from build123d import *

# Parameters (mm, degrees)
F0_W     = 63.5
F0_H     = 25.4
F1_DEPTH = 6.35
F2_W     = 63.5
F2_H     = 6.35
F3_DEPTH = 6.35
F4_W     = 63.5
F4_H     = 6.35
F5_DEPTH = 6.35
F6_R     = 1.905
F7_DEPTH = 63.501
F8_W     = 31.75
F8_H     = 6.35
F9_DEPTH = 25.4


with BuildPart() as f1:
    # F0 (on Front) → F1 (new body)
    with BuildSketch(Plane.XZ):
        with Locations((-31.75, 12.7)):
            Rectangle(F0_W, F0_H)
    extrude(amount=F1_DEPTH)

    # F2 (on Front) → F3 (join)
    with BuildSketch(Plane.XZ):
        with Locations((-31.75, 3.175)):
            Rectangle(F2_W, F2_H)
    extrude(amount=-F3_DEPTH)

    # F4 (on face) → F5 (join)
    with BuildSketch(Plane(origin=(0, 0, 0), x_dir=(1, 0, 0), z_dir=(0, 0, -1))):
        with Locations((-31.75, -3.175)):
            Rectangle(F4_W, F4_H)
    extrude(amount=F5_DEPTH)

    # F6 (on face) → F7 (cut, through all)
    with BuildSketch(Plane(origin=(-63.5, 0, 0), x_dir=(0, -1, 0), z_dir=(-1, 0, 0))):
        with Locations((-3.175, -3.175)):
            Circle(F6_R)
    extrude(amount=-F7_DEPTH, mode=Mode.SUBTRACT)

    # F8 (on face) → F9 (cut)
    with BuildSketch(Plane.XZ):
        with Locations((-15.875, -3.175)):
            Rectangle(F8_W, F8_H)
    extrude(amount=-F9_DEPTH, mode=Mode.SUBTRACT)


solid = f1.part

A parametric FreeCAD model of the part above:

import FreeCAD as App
import Part
import Sketcher

V = App.Vector
Q = App.Units.Quantity


def add_polygon(sketch, points):
    """Adds a closed chain of lines whose ends are joined by coincident constraints."""
    first, n = sketch.GeometryCount, len(points)
    for a, b in zip(points, points[1:] + points[:1]):
        sketch.addGeometry(Part.LineSegment(App.Vector(*a, 0), App.Vector(*b, 0)), False)
    for i in range(n):
        sketch.addConstraint(Sketcher.Constraint("Coincident", first + i, 2, first + (i + 1) % n, 1))

doc = App.newDocument("Part")
body = doc.addObject("PartDesign::Body", "Body")

# Sketch on XZ plane
sketch1 = body.newObject("Sketcher::SketchObject", "Sketch")
sketch1.AttachmentSupport = (doc.getObject("XZ_Plane"), [""])
sketch1.MapMode = "FlatFace"
add_polygon(sketch1, [(-64, 25), (-64, 0), (0, 0), (0, 25)])  # lines 0-3
sketch1.addConstraint([
    Sketcher.Constraint("Vertical", 0),
    Sketcher.Constraint("Horizontal", 1),
    Sketcher.Constraint("Vertical", 2),
    Sketcher.Constraint("Horizontal", 3),
    Sketcher.Constraint("Coincident", 1, 2, -1, 1),
    Sketcher.Constraint("DistanceY", 0, 2, 0, 1, Q("1 in")),
    Sketcher.Constraint("DistanceX", 1, 1, 1, 2, Q("2.5 in")),
])
pad1 = body.newObject("PartDesign::Pad", "Pad")
pad1.Profile = sketch1
pad1.Length = Q("0.25 in")

# Sketch on XZ plane
sketch2 = body.newObject("Sketcher::SketchObject", "Sketch001")
sketch2.AttachmentSupport = (doc.getObject("XZ_Plane"), [""])
sketch2.MapMode = "FlatFace"
add_polygon(sketch2, [(-64, 6), (-64, 0), (0, 0), (0, 6)])  # lines 0-3
sketch2.addConstraint([
    Sketcher.Constraint("Vertical", 0),
    Sketcher.Constraint("Horizontal", 1),
    Sketcher.Constraint("Vertical", 2),
    Sketcher.Constraint("Horizontal", 3),
    Sketcher.Constraint("Coincident", 1, 2, -1, 1),
    Sketcher.Constraint("DistanceX", 1, 1, 1, 2, Q("2.5 in")),
    Sketcher.Constraint("DistanceY", 0, 2, 0, 1, Q("0.25 in")),
])
pad2 = body.newObject("PartDesign::Pad", "Pad001")
pad2.Profile = sketch2
pad2.Length = Q("0.25 in")
pad2.Reversed = True

# Sketch on XY plane
sketch3 = body.newObject("Sketcher::SketchObject", "Sketch002")
sketch3.AttachmentSupport = (doc.getObject("XY_Plane"), [""])
sketch3.MapMode = "FlatFace"
add_polygon(sketch3, [(-64, 0), (-64, 6), (0, 6), (0, 0)])  # lines 0-3
sketch3.addConstraint([
    Sketcher.Constraint("Vertical", 0),
    Sketcher.Constraint("Horizontal", 1),
    Sketcher.Constraint("Vertical", 2),
    Sketcher.Constraint("Horizontal", 3),
    Sketcher.Constraint("Coincident", 2, 2, -1, 1),
    Sketcher.Constraint("DistanceX", 1, 1, 1, 2, Q("2.5 in")),
    Sketcher.Constraint("DistanceY", 0, 1, 0, 2, Q("0.25 in")),
])
pad3 = body.newObject("PartDesign::Pad", "Pad002")
pad3.Profile = sketch3
pad3.Length = Q("0.25 in")
pad3.Reversed = True

# Sketch on YZ plane
sketch4 = body.newObject("Sketcher::SketchObject", "Sketch003")
sketch4.AttachmentSupport = (doc.getObject("YZ_Plane"), [""])
sketch4.MapMode = "FlatFace"
sketch4.AttachmentOffset = App.Placement(V(0, 0, -2.5 * 25.4), App.Rotation())
sketch4.addGeometry(Part.Circle(V(3.2, -3.2, 0), V(0, 0, 1), 1.9), False)
sketch4.addConstraint([
    Sketcher.Constraint("Diameter", 0, Q("0.15 in")),
    Sketcher.Constraint("DistanceX", -1, 1, 0, 3, Q("0.125 in")),
    Sketcher.Constraint("DistanceY", 0, 3, -1, 1, Q("0.125 in")),
])
pocket1 = body.newObject("PartDesign::Pocket", "Pocket")
pocket1.Profile = sketch4
pocket1.Type = "ThroughAll"
pocket1.Reversed = True

# Sketch on XZ plane
sketch5 = body.newObject("Sketcher::SketchObject", "Sketch004")
sketch5.AttachmentSupport = (doc.getObject("XZ_Plane"), [""])
sketch5.MapMode = "FlatFace"
add_polygon(sketch5, [(-32, 0), (-32, -6), (0, -6), (0, 0)])  # lines 0-3
sketch5.addConstraint([
    Sketcher.Constraint("Vertical", 0),
    Sketcher.Constraint("Horizontal", 1),
    Sketcher.Constraint("Vertical", 2),
    Sketcher.Constraint("Horizontal", 3),
    Sketcher.Constraint("Coincident", 2, 2, -1, 1),
    Sketcher.Constraint("DistanceX", 1, 1, 1, 2, Q("1.25 in")),
    Sketcher.Constraint("DistanceY", 0, 2, 0, 1, Q("0.25 in")),
])
pocket2 = body.newObject("PartDesign::Pocket", "Pocket001")
pocket2.Profile = sketch5
pocket2.Length = Q("1 in")

doc.recompute()
